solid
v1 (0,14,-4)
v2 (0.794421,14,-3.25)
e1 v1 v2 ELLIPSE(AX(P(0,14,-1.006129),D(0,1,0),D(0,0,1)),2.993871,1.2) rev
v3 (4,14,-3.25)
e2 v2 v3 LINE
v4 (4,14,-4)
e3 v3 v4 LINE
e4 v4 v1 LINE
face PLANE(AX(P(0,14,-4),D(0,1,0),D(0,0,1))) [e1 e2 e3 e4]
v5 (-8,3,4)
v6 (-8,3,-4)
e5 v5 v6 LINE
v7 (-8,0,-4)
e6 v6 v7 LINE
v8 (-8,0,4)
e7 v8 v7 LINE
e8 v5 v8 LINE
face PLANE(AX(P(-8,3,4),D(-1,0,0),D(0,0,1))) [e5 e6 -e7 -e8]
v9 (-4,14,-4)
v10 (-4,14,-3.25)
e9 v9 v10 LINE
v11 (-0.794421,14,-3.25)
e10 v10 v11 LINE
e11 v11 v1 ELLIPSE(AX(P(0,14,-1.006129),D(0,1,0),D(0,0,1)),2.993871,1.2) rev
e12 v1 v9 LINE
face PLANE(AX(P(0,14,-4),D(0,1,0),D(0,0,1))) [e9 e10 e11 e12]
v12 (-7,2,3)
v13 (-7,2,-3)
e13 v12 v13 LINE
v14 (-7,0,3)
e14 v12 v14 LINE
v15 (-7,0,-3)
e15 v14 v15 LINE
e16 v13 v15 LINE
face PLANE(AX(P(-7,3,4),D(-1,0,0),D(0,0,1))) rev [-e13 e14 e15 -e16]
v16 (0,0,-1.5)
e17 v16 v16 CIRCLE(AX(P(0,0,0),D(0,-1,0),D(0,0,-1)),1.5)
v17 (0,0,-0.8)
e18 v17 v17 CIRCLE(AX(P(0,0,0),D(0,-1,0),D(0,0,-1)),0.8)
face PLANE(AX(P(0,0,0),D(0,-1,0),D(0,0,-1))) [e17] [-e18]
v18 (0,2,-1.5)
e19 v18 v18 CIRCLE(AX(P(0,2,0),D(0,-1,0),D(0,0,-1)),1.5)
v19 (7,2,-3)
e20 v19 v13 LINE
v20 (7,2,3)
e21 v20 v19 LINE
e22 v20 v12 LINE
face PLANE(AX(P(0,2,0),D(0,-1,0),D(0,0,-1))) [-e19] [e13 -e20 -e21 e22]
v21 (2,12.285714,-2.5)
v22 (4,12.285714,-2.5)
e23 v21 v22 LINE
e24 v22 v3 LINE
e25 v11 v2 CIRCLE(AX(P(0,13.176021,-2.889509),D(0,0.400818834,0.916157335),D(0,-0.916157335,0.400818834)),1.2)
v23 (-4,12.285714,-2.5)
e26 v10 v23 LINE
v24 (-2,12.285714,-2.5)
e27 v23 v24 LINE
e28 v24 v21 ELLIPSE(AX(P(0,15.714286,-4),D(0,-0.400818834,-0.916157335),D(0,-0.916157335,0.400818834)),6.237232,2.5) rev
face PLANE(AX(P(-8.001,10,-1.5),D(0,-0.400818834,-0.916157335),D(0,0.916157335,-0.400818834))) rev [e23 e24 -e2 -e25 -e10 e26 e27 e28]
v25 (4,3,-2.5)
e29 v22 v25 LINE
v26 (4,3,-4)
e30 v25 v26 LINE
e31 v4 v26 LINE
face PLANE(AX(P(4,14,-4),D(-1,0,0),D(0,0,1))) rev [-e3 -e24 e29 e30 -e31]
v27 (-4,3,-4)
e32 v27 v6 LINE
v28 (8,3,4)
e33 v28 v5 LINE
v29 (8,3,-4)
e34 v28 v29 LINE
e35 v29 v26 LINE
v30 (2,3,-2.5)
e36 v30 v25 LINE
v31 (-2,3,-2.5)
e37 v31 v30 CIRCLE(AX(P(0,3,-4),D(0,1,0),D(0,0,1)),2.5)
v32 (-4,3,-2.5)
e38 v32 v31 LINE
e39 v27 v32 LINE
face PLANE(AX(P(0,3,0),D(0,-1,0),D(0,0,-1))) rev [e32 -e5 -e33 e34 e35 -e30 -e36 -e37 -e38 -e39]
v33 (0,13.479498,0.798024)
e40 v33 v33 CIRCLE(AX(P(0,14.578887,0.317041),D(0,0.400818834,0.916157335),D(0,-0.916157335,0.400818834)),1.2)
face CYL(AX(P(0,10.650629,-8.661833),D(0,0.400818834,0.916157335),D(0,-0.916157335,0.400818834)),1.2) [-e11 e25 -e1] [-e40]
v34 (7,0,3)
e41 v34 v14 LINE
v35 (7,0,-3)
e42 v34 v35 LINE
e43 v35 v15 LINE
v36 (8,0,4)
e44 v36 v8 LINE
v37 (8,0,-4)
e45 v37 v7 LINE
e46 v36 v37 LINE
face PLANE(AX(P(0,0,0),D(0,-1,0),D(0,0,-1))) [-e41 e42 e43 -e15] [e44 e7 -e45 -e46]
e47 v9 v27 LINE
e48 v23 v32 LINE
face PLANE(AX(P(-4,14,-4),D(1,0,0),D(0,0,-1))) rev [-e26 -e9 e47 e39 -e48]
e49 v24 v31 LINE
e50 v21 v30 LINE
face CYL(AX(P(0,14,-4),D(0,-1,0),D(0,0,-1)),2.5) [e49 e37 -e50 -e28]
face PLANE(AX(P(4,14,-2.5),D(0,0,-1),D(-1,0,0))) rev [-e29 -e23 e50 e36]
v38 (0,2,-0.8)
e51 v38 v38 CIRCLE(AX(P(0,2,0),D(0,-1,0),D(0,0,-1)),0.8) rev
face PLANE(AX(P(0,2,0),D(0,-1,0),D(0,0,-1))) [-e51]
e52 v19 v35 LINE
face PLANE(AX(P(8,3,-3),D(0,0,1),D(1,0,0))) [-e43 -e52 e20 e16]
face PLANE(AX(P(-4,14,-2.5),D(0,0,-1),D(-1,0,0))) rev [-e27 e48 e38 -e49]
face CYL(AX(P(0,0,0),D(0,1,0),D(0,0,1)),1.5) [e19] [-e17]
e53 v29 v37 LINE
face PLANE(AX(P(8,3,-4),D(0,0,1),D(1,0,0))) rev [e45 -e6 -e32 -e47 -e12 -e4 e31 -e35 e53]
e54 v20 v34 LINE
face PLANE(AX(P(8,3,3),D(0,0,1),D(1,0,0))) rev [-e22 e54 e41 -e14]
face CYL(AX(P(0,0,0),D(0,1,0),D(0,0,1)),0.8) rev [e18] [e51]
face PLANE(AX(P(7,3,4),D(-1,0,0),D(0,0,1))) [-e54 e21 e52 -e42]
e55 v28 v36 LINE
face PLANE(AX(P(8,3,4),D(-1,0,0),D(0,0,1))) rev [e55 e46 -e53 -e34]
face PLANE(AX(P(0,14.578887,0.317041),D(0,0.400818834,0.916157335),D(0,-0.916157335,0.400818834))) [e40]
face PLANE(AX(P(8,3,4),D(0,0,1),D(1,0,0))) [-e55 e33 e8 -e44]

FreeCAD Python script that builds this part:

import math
import FreeCAD as App
import Part
import Sketcher
from FreeCAD import Vector
Q = App.Units.Quantity


def faces_at(feature, points):
    """Names of the faces that lie closest to the given points."""
    faces = feature.Shape.Faces
    near = lambda p: min(range(len(faces)), key=lambda i: faces[i].distToShape(Part.Vertex(*p))[0])
    return sorted({f"Face{near(p) + 1}" for p in points})


def add_polygon(sketch, points):
    """Adds a closed chain of lines whose ends are joined by coincident constraints."""
    first, n = sketch.GeometryCount, len(points)
    for a, b in zip(points, points[1:] + points[:1]):
        sketch.addGeometry(Part.LineSegment(App.Vector(*a, 0), App.Vector(*b, 0)), False)
    for i in range(n):
        sketch.addConstraint(Sketcher.Constraint("Coincident", first + i, 2, first + (i + 1) % n, 1))

doc = App.newDocument("Part")
params = doc.addObject("Spreadsheet::Sheet", "Params")
for row, (alias, value) in enumerate([
    ("sketch1_width", "16 mm"),
    ("sketch1_height", "8 mm"),
    ("pad1_length", "3 mm"),
    ("thickness_wall", "1 mm"),
    ("sketch2_diameter", "3 mm"),
    ("sketch2_diameter2", "1.6 mm"),
    ("pad2_length", "2 mm"),
    ("sketch3_radius", "2.5 mm"),
    ("sketch3_width", "8 mm"),
    ("sketch3_width2", "2 mm"),
    ("pad3_length", "11 mm"),
    ("sketch4_width", "4 mm"),
    ("sketch4_height", "1.75 mm"),
    ("sketch5_diameter", "2.4 mm"),
    ("pad4_length", "3.5 mm"),
    ("sketch6_diameter", "2.4 mm"),
], start=1):
    params.set(f"A{row}", alias)
    params.set(f"B{row}", "=" + value)
    params.setAlias(f"B{row}", alias)

body = doc.addObject("PartDesign::Body", "Body")

sketch1 = body.newObject("Sketcher::SketchObject", "Sketch")
sketch1.AttachmentSupport = (doc.getObject("XZ_Plane"), [""])
sketch1.MapMode = "FlatFace"
add_polygon(sketch1, [(-8, -4), (-8, 4), (8, 4), (8, -4)])
sketch1.addConstraint([
    Sketcher.Constraint("Vertical", 0),
    Sketcher.Constraint("Horizontal", 1),
    Sketcher.Constraint("Vertical", 2),
    Sketcher.Constraint("Horizontal", 3),
    Sketcher.Constraint("Symmetric", 0, 2, 2, 2, -1, 1),
    Sketcher.Constraint("DistanceX", 1, 1, 1, 2, Q("16 mm")),
    Sketcher.Constraint("DistanceY", 0, 1, 0, 2, Q("8 mm")),
])
sketch1.setExpression("Constraints[9]", "Params.sketch1_width")
sketch1.setExpression("Constraints[10]", "Params.sketch1_height")
pad1 = body.newObject("PartDesign::Pad", "Pad")
pad1.Profile = sketch1
pad1.setExpression("Length", "Params.pad1_length")
pad1.Reversed = True
doc.recompute()

thickness = body.newObject("PartDesign::Thickness", "Thickness")
thickness.Base = (pad1, faces_at(pad1, [(0, 0, 0)]))
thickness.setExpression("Value", "Params.thickness_wall")
thickness.Reversed = True
thickness.Join = "Intersection"

sketch2 = body.newObject("Sketcher::SketchObject", "Sketch001")
sketch2.AttachmentSupport = (doc.getObject("XZ_Plane"), [""])
sketch2.MapMode = "FlatFace"
sketch2.AttachmentOffset = App.Placement(Vector(0, 0, -2), App.Rotation())
sketch2.addGeometry([
    Part.Circle(Vector(0, 0, 0), Vector(0, 0, 1), 1.5),
    Part.Circle(Vector(0, 0, 0), Vector(0, 0, 1), 0.8),
], False)
sketch2.addConstraint([
    Sketcher.Constraint("Coincident", 0, 3, -1, 1),
    Sketcher.Constraint("Coincident", 1, 3, -1, 1),
    Sketcher.Constraint("Diameter", 0, Q("3 mm")),
    Sketcher.Constraint("Diameter", 1, Q("1.6 mm")),
])
sketch2.setExpression("Constraints[2]", "Params.sketch2_diameter")
sketch2.setExpression("Constraints[3]", "Params.sketch2_diameter2")
pad2 = body.newObject("PartDesign::Pad", "Pad001")
pad2.Profile = sketch2
pad2.setExpression("Length", "Params.pad2_length")

sketch3 = body.newObject("Sketcher::SketchObject", "Sketch002")
sketch3.AttachmentSupport = (doc.getObject("XZ_Plane"), [""])
sketch3.MapMode = "FlatFace"
sketch3.AttachmentOffset = App.Placement(Vector(0, 0, -3), App.Rotation())
sketch3.addGeometry([
    Part.LineSegment(Vector(4, -4, 0), Vector(-4, -4, 0)),
    Part.LineSegment(Vector(-4, -4, 0), Vector(-4, -2.5, 0)),
    Part.LineSegment(Vector(-4, -2.5, 0), Vector(-2, -2.5, 0)),
    Part.ArcOfCircle(Part.Circle(Vector(0, -4, 0), Vector(0, 0, 1), 2.5), math.radians(36.869898), math.radians(143.130102)),
    Part.LineSegment(Vector(2, -2.5, 0), Vector(4, -2.5, 0)),
    Part.LineSegment(Vector(4, -2.5, 0), Vector(4, -4, 0)),
], False)
sketch3.addConstraint([
    Sketcher.Constraint("Coincident", 0, 2, 1, 1),
    Sketcher.Constraint("Coincident", 1, 2, 2, 1),
    Sketcher.Constraint("Coincident", 2, 2, 3, 2),
    Sketcher.Constraint("Coincident", 3, 1, 4, 1),
    Sketcher.Constraint("Coincident", 4, 2, 5, 1),
    Sketcher.Constraint("Coincident", 5, 2, 0, 1),
    Sketcher.Constraint("Horizontal", 0),
    Sketcher.Constraint("Vertical", 1),
    Sketcher.Constraint("Horizontal", 2),
    Sketcher.Constraint("Horizontal", 4),
    Sketcher.Constraint("Vertical", 5),
    Sketcher.Constraint("Symmetric", 2, 2, 3, 1, -2),
    Sketcher.Constraint("Horizontal", 3, 3, 0, 2),
    Sketcher.Constraint("Equal", 2, 4),
    Sketcher.Constraint("Radius", 3, Q("2.5 mm")),
    Sketcher.Constraint("DistanceX", 0, 2, 0, 1, Q("8 mm")),
    Sketcher.Constraint("DistanceX", 2, 1, 2, 2, Q("2 mm")),
    Sketcher.Constraint("DistanceY", 3, 3, -1, 1, Q("4 mm")),
])
sketch3.setExpression("Constraints[14]", "Params.sketch3_radius")
sketch3.setExpression("Constraints[15]", "Params.sketch3_width")
sketch3.setExpression("Constraints[16]", "Params.sketch3_width2")
pad3 = body.newObject("PartDesign::Pad", "Pad002")
pad3.Profile = sketch3
pad3.setExpression("Length", "Params.pad3_length")
pad3.Reversed = True

sketch4 = body.newObject("Sketcher::SketchObject", "Sketch003")
sketch4.AttachmentSupport = (doc.getObject("YZ_Plane"), [""])
sketch4.MapMode = "FlatFace"
sketch4.AttachmentOffset = App.Placement(Vector(0, 0, 4), App.Rotation())
add_polygon(sketch4, [(14, -3.25), (14, -1.5), (10, -1.5)])
sketch4.addConstraint([
    Sketcher.Constraint("Vertical", 0),
    Sketcher.Constraint("Horizontal", 1),
    Sketcher.Constraint("DistanceX", 1, 2, 1, 1, Q("4 mm")),
    Sketcher.Constraint("DistanceX", -1, 1, 0, 2, Q("14 mm")),
    Sketcher.Constraint("DistanceY", 0, 1, 0, 2, Q("1.75 mm")),
    Sketcher.Constraint("DistanceY", 0, 2, -1, 1, Q("1.5 mm")),
])
sketch4.setExpression("Constraints[5]", "Params.sketch4_width")
sketch4.setExpression("Constraints[7]", "Params.sketch4_height")
pocket1 = body.newObject("PartDesign::Pocket", "Pocket")
pocket1.Profile = sketch4
pocket1.Type = "UpToFirst"

sketch5 = body.newObject("Sketcher::SketchObject", "Sketch004")
sketch5.Placement = App.Placement(Vector(0, 1.055738, 2.413115), App.Rotation(Vector(1, 0, 0), Vector(0, 0.916157335, -0.400818834), Vector(0, 0.400818834, 0.916157335), "ZXY"))
sketch5.addGeometry(Part.Circle(Vector(0, 13.229478, 0), Vector(0, 0, 1), 1.2), False)
sketch5.addConstraint([
    Sketcher.Constraint("PointOnObject", 0, 3, -2),
    Sketcher.Constraint("Diameter", 0, Q("2.4 mm")),
    Sketcher.Constraint("DistanceY", -1, 1, 0, 3, Q("13.229478 mm")),
])
sketch5.setExpression("Constraints[1]", "Params.sketch5_diameter")
pad4 = body.newObject("PartDesign::Pad", "Pad003")
pad4.Profile = sketch5
pad4.setExpression("Length", "Params.pad4_length")

sketch6 = body.newObject("Sketcher::SketchObject", "Sketch005")
sketch6.Placement = App.Placement(Vector(0, 1.055738, 2.413115), App.Rotation(Vector(1, 0, 0), Vector(0, 0.916157335, -0.400818834), Vector(0, 0.400818834, 0.916157335), "ZXY"))
sketch6.addGeometry(Part.Circle(Vector(0, 13.229478, 0), Vector(0, 0, 1), 1.2), False)
sketch6.addConstraint([
    Sketcher.Constraint("PointOnObject", 0, 3, -2),
    Sketcher.Constraint("Diameter", 0, Q("2.4 mm")),
    Sketcher.Constraint("DistanceY", -1, 1, 0, 3, Q("13.229478 mm")),
])
sketch6.setExpression("Constraints[1]", "Params.sketch6_diameter")
pad5 = body.newObject("PartDesign::Pad", "Pad004")
pad5.Profile = sketch6
pad5.Type = "UpToFirst"
pad5.Reversed = True

doc.recompute()
